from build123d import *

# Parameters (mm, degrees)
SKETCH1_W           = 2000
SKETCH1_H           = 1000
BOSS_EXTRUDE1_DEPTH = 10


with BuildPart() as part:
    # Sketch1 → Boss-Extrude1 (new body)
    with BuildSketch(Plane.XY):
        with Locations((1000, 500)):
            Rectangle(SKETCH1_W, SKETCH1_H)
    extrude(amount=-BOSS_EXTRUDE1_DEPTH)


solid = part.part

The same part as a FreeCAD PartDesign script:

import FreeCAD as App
import Part
import Sketcher
from FreeCAD import Vector
Q = App.Units.Quantity


def add_polygon(sketch, points):
    """Adds a closed chain of lines whose ends are joined by coincident constraints."""
    first, n = sketch.GeometryCount, len(points)
    for a, b in zip(points, points[1:] + points[:1]):
        sketch.addGeometry(Part.LineSegment(App.Vector(*a, 0), App.Vector(*b, 0)), False)
    for i in range(n):
        sketch.addConstraint(Sketcher.Constraint("Coincident", first + i, 2, first + (i + 1) % n, 1))

doc = App.newDocument("Part")
body = doc.addObject("PartDesign::Body", "Body")

# Sketch on XY plane
sketch1 = body.newObject("Sketcher::SketchObject", "Sketch")
sketch1.AttachmentSupport = (doc.getObject("XY_Plane"), [""])
sketch1.MapMode = "FlatFace"
add_polygon(sketch1, [(0, 1000), (0, 0), (2000, 0), (2000, 1000)])  # lines 0-3
sketch1.addConstraint([
    Sketcher.Constraint("Vertical", 0),
    Sketcher.Constraint("Horizontal", 1),
    Sketcher.Constraint("Vertical", 2),
    Sketcher.Constraint("Horizontal", 3),
    Sketcher.Constraint("Coincident", 0, 2, -1, 1),
    Sketcher.Constraint("DistanceX", 1, 1, 1, 2, Q("2000 mm")),
    Sketcher.Constraint("DistanceY", 0, 2, 0, 1, Q("1000 mm")),
])
pad1 = body.newObject("PartDesign::Pad", "Pad")
pad1.Profile = sketch1
pad1.Length = 10
pad1.Reversed = True

doc.recompute()
